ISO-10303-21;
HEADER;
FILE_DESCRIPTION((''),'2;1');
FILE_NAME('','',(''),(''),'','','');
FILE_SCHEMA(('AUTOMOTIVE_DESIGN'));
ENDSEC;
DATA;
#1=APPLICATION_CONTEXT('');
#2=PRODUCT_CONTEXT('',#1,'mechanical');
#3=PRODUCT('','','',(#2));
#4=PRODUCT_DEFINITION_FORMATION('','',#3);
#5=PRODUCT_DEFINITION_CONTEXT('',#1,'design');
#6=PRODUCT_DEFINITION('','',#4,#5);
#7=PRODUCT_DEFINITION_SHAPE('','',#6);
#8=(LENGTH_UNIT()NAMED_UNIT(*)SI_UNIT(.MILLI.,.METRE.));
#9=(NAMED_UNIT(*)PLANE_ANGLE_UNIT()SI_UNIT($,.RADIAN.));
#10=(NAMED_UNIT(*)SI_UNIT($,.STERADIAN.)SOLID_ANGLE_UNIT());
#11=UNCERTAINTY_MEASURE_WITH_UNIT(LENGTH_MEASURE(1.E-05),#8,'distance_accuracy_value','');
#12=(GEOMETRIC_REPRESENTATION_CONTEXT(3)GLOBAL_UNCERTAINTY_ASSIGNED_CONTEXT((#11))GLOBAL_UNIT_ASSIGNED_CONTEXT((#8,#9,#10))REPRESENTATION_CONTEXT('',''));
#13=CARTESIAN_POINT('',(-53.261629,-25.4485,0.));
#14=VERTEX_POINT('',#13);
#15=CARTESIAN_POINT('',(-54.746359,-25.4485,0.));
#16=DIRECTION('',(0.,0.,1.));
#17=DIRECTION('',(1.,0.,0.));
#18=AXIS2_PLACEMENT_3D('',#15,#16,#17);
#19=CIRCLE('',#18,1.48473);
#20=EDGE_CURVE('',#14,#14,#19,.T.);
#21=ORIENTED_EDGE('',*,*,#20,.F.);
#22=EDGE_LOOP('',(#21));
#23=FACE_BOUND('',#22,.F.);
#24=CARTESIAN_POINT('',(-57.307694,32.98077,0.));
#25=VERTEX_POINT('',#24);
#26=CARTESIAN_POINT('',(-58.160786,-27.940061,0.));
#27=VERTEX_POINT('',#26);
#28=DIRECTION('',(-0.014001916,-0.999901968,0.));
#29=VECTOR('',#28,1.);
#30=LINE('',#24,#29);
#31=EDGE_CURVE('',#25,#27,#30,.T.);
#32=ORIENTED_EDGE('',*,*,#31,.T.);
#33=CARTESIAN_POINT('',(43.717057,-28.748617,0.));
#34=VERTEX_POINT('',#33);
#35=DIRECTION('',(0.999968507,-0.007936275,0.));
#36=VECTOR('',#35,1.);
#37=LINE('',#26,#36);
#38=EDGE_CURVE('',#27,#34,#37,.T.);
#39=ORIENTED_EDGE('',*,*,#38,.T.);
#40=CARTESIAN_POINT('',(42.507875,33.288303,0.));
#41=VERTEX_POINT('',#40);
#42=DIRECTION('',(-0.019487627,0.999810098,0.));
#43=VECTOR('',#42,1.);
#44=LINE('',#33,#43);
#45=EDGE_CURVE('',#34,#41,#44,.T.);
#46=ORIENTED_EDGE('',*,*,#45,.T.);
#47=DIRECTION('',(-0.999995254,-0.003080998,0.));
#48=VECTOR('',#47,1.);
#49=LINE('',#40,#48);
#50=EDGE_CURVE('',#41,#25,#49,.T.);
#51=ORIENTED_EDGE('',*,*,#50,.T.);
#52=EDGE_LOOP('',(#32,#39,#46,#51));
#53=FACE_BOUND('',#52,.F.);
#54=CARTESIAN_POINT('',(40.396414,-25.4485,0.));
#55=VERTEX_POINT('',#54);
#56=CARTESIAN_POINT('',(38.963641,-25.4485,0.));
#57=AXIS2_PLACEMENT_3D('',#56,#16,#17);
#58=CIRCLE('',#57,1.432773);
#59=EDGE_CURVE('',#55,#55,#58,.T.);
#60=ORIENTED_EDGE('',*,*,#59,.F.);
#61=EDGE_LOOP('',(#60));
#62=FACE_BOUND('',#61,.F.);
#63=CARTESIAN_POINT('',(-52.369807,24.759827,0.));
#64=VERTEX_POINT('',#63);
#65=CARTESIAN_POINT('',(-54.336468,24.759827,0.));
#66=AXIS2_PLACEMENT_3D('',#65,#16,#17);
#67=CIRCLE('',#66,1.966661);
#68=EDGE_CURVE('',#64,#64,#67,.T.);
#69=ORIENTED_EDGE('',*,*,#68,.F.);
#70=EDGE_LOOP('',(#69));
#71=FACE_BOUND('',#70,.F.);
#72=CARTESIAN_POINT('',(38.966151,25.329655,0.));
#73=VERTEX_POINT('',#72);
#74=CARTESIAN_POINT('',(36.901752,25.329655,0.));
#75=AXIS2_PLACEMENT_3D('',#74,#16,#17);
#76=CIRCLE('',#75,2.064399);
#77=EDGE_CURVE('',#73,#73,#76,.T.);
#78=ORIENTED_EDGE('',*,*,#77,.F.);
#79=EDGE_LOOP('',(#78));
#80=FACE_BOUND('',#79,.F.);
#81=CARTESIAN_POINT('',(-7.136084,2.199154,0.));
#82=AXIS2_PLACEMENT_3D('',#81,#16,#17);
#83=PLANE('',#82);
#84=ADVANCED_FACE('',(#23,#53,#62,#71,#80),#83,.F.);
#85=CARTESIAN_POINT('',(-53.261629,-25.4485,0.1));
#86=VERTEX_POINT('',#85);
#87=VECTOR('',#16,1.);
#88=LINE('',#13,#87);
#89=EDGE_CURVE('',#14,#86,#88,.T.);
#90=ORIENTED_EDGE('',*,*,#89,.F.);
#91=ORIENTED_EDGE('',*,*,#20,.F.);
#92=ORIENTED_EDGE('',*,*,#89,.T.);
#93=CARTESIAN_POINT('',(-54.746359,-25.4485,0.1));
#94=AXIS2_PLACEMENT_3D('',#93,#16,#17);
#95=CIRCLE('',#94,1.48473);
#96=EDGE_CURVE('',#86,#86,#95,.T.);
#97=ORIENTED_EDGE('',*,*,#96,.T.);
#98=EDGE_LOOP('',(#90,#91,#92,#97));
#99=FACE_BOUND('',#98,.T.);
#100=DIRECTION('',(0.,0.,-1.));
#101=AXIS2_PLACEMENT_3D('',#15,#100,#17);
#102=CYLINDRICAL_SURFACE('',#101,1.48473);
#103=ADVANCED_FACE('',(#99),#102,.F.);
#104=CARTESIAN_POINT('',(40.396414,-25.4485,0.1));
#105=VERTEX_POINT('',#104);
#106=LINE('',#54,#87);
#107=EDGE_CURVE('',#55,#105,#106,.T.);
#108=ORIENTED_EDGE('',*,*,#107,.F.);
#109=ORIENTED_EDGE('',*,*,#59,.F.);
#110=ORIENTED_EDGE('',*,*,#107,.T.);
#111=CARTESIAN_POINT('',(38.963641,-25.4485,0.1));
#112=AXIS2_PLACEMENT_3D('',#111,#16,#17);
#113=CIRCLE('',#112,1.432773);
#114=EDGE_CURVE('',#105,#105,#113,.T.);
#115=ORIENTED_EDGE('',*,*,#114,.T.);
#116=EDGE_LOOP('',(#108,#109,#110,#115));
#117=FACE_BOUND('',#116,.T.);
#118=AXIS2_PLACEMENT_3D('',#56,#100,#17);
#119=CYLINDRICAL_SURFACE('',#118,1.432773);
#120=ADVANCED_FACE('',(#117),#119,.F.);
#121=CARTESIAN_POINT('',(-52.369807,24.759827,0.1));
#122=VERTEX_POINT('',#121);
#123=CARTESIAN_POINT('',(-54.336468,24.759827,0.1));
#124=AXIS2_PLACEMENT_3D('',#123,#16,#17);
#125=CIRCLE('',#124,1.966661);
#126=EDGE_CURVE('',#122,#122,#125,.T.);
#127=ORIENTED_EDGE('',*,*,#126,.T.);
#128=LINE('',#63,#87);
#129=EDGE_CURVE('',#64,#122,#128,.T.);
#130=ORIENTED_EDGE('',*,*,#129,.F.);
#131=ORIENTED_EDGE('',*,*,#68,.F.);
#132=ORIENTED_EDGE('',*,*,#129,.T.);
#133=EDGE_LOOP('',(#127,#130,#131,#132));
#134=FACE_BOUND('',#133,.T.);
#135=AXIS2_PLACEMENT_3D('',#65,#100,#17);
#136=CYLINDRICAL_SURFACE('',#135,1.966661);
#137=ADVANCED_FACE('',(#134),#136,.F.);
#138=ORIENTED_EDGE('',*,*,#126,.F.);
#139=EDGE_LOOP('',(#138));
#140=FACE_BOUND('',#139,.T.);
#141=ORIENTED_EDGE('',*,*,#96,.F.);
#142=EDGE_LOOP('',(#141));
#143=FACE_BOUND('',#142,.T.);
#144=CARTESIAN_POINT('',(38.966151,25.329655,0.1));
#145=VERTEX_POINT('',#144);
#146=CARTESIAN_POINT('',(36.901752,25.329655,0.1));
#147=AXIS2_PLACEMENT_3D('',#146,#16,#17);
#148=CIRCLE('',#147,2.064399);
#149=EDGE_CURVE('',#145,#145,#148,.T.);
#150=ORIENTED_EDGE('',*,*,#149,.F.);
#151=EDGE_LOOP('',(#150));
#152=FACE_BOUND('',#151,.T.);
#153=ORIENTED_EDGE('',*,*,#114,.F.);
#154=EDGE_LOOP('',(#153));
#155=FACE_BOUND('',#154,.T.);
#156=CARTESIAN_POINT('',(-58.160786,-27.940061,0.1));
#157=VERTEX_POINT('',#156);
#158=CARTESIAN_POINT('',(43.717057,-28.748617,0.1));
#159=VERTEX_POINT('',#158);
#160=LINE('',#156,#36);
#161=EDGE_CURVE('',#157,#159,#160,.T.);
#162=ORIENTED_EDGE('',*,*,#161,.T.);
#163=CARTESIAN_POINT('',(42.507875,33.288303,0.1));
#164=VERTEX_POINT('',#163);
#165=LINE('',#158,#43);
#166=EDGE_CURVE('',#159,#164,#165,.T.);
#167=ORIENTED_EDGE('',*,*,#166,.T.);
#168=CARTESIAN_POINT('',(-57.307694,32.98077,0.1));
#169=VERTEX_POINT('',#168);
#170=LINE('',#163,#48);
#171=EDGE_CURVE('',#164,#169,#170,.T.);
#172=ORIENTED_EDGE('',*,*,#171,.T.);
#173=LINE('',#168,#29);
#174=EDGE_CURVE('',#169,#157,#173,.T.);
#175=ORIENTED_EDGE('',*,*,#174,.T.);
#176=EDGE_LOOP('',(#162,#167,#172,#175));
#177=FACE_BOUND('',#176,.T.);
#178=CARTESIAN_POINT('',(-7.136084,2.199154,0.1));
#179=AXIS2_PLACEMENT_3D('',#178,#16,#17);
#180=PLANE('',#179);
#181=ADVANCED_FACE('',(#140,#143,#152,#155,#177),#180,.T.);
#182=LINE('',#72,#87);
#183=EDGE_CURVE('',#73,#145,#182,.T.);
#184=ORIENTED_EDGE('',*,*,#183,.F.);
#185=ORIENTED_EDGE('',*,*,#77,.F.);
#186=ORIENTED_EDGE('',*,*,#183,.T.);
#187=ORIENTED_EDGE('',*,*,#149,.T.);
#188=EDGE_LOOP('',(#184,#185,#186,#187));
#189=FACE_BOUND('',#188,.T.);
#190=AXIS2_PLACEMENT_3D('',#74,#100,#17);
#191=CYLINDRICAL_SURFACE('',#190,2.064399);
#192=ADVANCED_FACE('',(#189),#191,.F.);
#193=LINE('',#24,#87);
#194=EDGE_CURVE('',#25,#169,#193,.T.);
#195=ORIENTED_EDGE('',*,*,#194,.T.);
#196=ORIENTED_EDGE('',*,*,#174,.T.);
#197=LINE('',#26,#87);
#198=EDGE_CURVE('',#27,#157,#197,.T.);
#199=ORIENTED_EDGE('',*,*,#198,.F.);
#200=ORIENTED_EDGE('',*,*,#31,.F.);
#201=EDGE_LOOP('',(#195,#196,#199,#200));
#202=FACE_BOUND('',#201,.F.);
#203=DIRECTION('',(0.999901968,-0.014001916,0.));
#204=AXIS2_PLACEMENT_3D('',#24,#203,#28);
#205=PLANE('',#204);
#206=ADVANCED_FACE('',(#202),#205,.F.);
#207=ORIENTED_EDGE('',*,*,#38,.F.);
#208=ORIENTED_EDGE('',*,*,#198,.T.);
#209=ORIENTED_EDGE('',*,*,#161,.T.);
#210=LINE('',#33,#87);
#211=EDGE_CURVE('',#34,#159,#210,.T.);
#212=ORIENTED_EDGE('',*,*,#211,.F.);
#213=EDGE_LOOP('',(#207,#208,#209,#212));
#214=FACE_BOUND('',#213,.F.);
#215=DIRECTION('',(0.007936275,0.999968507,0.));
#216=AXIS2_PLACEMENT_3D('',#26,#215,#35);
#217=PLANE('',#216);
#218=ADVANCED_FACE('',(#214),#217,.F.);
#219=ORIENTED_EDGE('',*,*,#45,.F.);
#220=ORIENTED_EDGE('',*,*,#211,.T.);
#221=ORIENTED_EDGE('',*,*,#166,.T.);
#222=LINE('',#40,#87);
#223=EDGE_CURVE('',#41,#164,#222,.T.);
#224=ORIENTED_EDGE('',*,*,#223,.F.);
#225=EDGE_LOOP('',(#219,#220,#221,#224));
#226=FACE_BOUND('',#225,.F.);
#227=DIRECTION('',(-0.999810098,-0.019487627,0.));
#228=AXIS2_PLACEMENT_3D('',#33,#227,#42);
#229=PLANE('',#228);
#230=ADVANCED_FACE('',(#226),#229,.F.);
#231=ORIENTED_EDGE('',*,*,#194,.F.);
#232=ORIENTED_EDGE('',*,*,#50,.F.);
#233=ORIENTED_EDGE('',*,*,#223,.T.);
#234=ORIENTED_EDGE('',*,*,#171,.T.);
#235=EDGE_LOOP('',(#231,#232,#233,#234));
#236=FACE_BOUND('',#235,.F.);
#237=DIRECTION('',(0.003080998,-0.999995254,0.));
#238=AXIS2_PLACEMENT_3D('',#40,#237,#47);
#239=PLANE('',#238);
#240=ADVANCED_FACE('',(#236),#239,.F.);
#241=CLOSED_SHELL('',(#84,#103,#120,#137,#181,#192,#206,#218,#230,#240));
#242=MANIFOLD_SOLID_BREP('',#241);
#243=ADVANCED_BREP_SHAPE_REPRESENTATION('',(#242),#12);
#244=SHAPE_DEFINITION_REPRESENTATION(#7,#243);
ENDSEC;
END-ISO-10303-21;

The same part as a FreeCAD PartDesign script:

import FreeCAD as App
import Part
import Sketcher
from FreeCAD import Vector


def add_polygon(sketch, points):
    """Adds a closed chain of lines whose ends are joined by coincident constraints."""
    first, n = sketch.GeometryCount, len(points)
    for a, b in zip(points, points[1:] + points[:1]):
        sketch.addGeometry(Part.LineSegment(App.Vector(*a, 0), App.Vector(*b, 0)), False)
    for i in range(n):
        sketch.addConstraint(Sketcher.Constraint("Coincident", first + i, 2, first + (i + 1) % n, 1))

doc = App.newDocument("Part")
body = doc.addObject("PartDesign::Body", "Body")

# Sketch on XY plane
sketch1 = body.newObject("Sketcher::SketchObject", "Sketch")
sketch1.AttachmentSupport = (doc.getObject("XY_Plane"), [""])
sketch1.MapMode = "FlatFace"
add_polygon(sketch1, [(42.5, 33.3), (-57.3, 33), (-58.2, -27.9), (43.7, -28.7)])  # lines 0-3
sketch1.addGeometry(Part.Circle(Vector(-54.7, -25.4, 0), Vector(0, 0, 1), 1.5), False)  # 4
sketch1.addGeometry(Part.Circle(Vector(39, -25.4, 0), Vector(0, 0, 1), 1.4), False)  # 5
sketch1.addGeometry(Part.Circle(Vector(-54.3, 24.8, 0), Vector(0, 0, 1), 2), False)  # 6
sketch1.addGeometry(Part.Circle(Vector(36.9, 25.3, 0), Vector(0, 0, 1), 2.1), False)  # 7
sketch1.addConstraint([
    Sketcher.Constraint("Horizontal", 4, 3, 5, 3),
    Sketcher.Constraint("Diameter", 4, 2.96946),
    Sketcher.Constraint("Diameter", 6, 3.933322),
    Sketcher.Constraint("DistanceX", 4, 3, 5, 3, 93.71),
    Sketcher.Constraint("Diameter", 5, 2.865546),
    Sketcher.Constraint("Diameter", 7, 4.128798),
    Sketcher.Constraint("DistanceY", 4, 3, -1, 1, 25.4485),
    Sketcher.Constraint("Distance", 2, 101.881052),
    Sketcher.Constraint("DistanceX", 4, 3, -1, 1, 54.746359),
    Sketcher.Constraint("DistanceX", 6, 3, -1, 1, 54.336468),
    Sketcher.Constraint("DistanceY", -1, 1, 0, 2, 32.98077),
    Sketcher.Constraint("DistanceY", 1, 2, -1, 1, 27.940061),
    Sketcher.Constraint("DistanceX", 7, 3, 5, 3, 2.061889),
    Sketcher.Constraint("DistanceX", 1, 2, 7, 3, 95.062538),
    Sketcher.Constraint("DistanceY", 2, 2, 7, 3, 54.078272),
    Sketcher.Constraint("DistanceY", 7, 3, 3, 2, 7.958648),
    Sketcher.Constraint("DistanceX", 3, 2, 2, 2, 1.209182),
    Sketcher.Constraint("DistanceX", 0, 2, 3, 2, 99.815569),
    Sketcher.Constraint("DistanceY", -1, 1, 6, 3, 24.759827),
    Sketcher.Constraint("DistanceY", -1, 1, 7, 3, 25.329655),
])
pad1 = body.newObject("PartDesign::Pad", "Pad")
pad1.Profile = sketch1
pad1.Length = 0.1

doc.recompute()
